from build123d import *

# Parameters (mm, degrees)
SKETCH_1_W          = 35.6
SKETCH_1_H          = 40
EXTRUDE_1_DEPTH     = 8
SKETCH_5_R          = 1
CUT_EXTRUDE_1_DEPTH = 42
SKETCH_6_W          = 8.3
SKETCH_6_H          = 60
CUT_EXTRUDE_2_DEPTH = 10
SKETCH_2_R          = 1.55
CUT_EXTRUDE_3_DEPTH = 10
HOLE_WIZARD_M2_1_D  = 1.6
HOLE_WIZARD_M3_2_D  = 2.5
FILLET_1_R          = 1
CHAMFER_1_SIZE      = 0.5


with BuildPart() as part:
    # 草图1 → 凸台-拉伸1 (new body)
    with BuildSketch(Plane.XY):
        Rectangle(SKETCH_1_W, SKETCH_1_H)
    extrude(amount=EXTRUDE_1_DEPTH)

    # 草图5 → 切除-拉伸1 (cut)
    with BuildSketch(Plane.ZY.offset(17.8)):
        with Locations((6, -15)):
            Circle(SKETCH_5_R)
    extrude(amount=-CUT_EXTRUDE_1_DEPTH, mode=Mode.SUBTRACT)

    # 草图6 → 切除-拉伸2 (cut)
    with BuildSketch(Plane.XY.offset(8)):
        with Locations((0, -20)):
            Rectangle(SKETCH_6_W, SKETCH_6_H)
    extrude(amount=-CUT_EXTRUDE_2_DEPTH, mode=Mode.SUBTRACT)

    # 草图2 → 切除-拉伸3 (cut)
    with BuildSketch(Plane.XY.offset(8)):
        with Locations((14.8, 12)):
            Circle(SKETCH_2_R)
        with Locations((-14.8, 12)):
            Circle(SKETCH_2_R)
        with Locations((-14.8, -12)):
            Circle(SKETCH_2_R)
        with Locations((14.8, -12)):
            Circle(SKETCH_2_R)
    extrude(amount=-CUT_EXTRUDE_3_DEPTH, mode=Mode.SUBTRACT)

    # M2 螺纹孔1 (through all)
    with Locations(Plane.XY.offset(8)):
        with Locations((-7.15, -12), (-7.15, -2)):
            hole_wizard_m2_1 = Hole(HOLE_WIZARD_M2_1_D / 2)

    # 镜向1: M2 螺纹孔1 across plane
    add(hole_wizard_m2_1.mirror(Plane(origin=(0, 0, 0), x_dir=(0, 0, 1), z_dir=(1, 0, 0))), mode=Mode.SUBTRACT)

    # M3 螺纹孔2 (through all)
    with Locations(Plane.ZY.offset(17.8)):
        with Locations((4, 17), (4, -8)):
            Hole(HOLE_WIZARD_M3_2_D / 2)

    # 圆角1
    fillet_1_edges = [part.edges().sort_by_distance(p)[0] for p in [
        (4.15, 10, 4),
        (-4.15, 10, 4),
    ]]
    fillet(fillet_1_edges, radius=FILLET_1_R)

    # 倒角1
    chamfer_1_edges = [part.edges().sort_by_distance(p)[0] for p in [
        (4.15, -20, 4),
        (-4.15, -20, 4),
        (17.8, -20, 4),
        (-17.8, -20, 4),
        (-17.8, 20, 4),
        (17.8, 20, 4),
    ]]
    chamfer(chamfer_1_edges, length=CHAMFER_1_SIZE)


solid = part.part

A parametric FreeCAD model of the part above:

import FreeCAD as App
import Part
import Sketcher

V = App.Vector


def edges_at(feature, points):
    """Names of the edges that pass closest to the given points."""
    edges = feature.Shape.Edges
    near = lambda p: min(range(len(edges)), key=lambda i: edges[i].distToShape(Part.Vertex(*p))[0])
    return sorted({f"Edge{near(p) + 1}" for p in points})

doc = App.newDocument("Part")
params = doc.addObject("Spreadsheet::Sheet", "Params")
for row, (alias, value) in enumerate([
    ("sketch1_height", "40 mm"),
    ("sketch1_width", "35.6 mm"),
    ("pad1_length", "8 mm"),
    ("sketch2_diameter", "2 mm"),
    ("pocket1_length", "42 mm"),
    ("sketch3_height", "60 mm"),
    ("sketch3_width", "8.3 mm"),
    ("pocket2_length", "10 mm"),
    ("sketch4_diameter", "3.1 mm"),
    ("pocket3_length", "10 mm"),
    ("sketch5_diameter", "1.6 mm"),
    ("hole_diameter", "1.6 mm"),
    ("sketch6_diameter", "2.5 mm"),
    ("hole2_diameter", "2.5 mm"),
    ("fillet_radius", "1 mm"),
    ("chamfer_size", "0.5 mm"),
], start=1):
    params.set(f"A{row}", alias)
    params.set(f"B{row}", "=" + value)
    params.setAlias(f"B{row}", alias)

body = doc.addObject("PartDesign::Body", "Body")

# Sketch on XY plane
sketch1 = body.newObject("Sketcher::SketchObject", "Sketch")
sketch1.AttachmentSupport = (doc.getObject("XY_Plane"), [""])
sketch1.MapMode = "FlatFace"
sketch1.addGeometry([
    Part.LineSegment(V(-17.8, 20, 0), V(-17.8, -20, 0)),
    Part.LineSegment(V(-17.8, -20, 0), V(17.8, -20, 0)),
    Part.LineSegment(V(17.8, -20, 0), V(17.8, 20, 0)),
    Part.LineSegment(V(17.8, 20, 0), V(-17.8, 20, 0)),
], False)
sketch1.addConstraint([
    Sketcher.Constraint("Coincident", 0, 2, 1, 1),
    Sketcher.Constraint("Coincident", 1, 2, 2, 1),
    Sketcher.Constraint("Coincident", 2, 2, 3, 1),
    Sketcher.Constraint("Coincident", 3, 2, 0, 1),
    Sketcher.Constraint("Vertical", 0),
    Sketcher.Constraint("Horizontal", 1),
    Sketcher.Constraint("Vertical", 2),
    Sketcher.Constraint("Horizontal", 3),
    Sketcher.Constraint("Symmetric", 0, 2, 2, 2, -1, 1),
    Sketcher.Constraint("DistanceY", 0, 2, 0, 1, 40.0),
    Sketcher.Constraint("DistanceX", 1, 1, 1, 2, 35.6),
])
sketch1.setExpression("Constraints[9]", "Params.sketch1_height")
sketch1.setExpression("Constraints[10]", "Params.sketch1_width")
pad1 = body.newObject("PartDesign::Pad", "Pad")
pad1.Profile = sketch1
pad1.setExpression("Length", "Params.pad1_length")

# Sketch on YZ plane
sketch2 = body.newObject("Sketcher::SketchObject", "Sketch001")
sketch2.AttachmentSupport = (doc.getObject("YZ_Plane"), [""])
sketch2.MapMode = "FlatFace"
sketch2.AttachmentOffset = App.Placement(V(0, 0, -17.8), App.Rotation())
sketch2.addGeometry(Part.Circle(V(-15, 6, 0), V(0, 0, 1), 1), False)
sketch2.addConstraint([
    Sketcher.Constraint("Diameter", 0, 2.0),
    Sketcher.Constraint("DistanceX", 0, 3, -1, 1, 15.0),
    Sketcher.Constraint("DistanceY", -1, 1, 0, 3, 6.0),
])
sketch2.setExpression("Constraints[0]", "Params.sketch2_diameter")
pocket1 = body.newObject("PartDesign::Pocket", "Pocket")
pocket1.Profile = sketch2
pocket1.setExpression("Length", "Params.pocket1_length")
pocket1.Reversed = True

# Sketch on XY plane
sketch3 = body.newObject("Sketcher::SketchObject", "Sketch002")
sketch3.AttachmentSupport = (doc.getObject("XY_Plane"), [""])
sketch3.MapMode = "FlatFace"
sketch3.AttachmentOffset = App.Placement(V(0, 0, 8), App.Rotation())
sketch3.addGeometry([
    Part.LineSegment(V(-4.15, 10, 0), V(-4.15, -50, 0)),
    Part.LineSegment(V(-4.15, -50, 0), V(4.15, -50, 0)),
    Part.LineSegment(V(4.15, -50, 0), V(4.15, 10, 0)),
    Part.LineSegment(V(4.15, 10, 0), V(-4.15, 10, 0)),
], False)
sketch3.addConstraint([
    Sketcher.Constraint("Coincident", 0, 2, 1, 1),
    Sketcher.Constraint("Coincident", 1, 2, 2, 1),
    Sketcher.Constraint("Coincident", 2, 2, 3, 1),
    Sketcher.Constraint("Coincident", 3, 2, 0, 1),
    Sketcher.Constraint("Vertical", 0),
    Sketcher.Constraint("Horizontal", 1),
    Sketcher.Constraint("Vertical", 2),
    Sketcher.Constraint("Horizontal", 3),
    Sketcher.Constraint("DistanceY", 0, 2, 0, 1, 60.0),
    Sketcher.Constraint("DistanceX", 1, 1, 1, 2, 8.3),
    Sketcher.Constraint("DistanceY", 0, 2, -1, 1, 50.0),
    Sketcher.Constraint("DistanceX", 0, 2, -1, 1, 4.15),
])
sketch3.setExpression("Constraints[8]", "Params.sketch3_height")
sketch3.setExpression("Constraints[9]", "Params.sketch3_width")
pocket2 = body.newObject("PartDesign::Pocket", "Pocket001")
pocket2.Profile = sketch3
pocket2.setExpression("Length", "Params.pocket2_length")

# Sketch on XY plane
sketch4 = body.newObject("Sketcher::SketchObject", "Sketch003")
sketch4.AttachmentSupport = (doc.getObject("XY_Plane"), [""])
sketch4.MapMode = "FlatFace"
sketch4.AttachmentOffset = App.Placement(V(0, 0, 8), App.Rotation())
sketch4.addGeometry([
    Part.Circle(V(14.8, 12, 0), V(0, 0, 1), 1.55),
    Part.Circle(V(-14.8, 12, 0), V(0, 0, 1), 1.55),
    Part.Circle(V(-14.8, -12, 0), V(0, 0, 1), 1.55),
    Part.Circle(V(14.8, -12, 0), V(0, 0, 1), 1.55),
], False)
sketch4.addConstraint([
    Sketcher.Constraint("Equal", 0, 1),
    Sketcher.Constraint("Equal", 1, 2),
    Sketcher.Constraint("Equal", 2, 3),
    Sketcher.Constraint("Symmetric", 0, 3, 2, 3, -1, 1),
    Sketcher.Constraint("Symmetric", 1, 3, 3, 3, -1, 1),
    Sketcher.Constraint("Symmetric", 0, 3, 1, 3, -2),
    Sketcher.Constraint("Diameter", 0, 3.1),
    Sketcher.Constraint("DistanceY", -1, 1, 0, 3, 12.0),
    Sketcher.Constraint("DistanceX", -1, 1, 0, 3, 14.8),
])
sketch4.setExpression("Constraints[6]", "Params.sketch4_diameter")
pocket3 = body.newObject("PartDesign::Pocket", "Pocket002")
pocket3.Profile = sketch4
pocket3.setExpression("Length", "Params.pocket3_length")

# Sketch on XY plane
sketch5 = body.newObject("Sketcher::SketchObject", "Sketch004")
sketch5.AttachmentSupport = (doc.getObject("XY_Plane"), [""])
sketch5.MapMode = "FlatFace"
sketch5.AttachmentOffset = App.Placement(V(0, 0, 8), App.Rotation())
sketch5.addGeometry([
    Part.Circle(V(-7.15, -12, 0), V(0, 0, 1), 0.8),
    Part.Circle(V(-7.15, -2, 0), V(0, 0, 1), 0.8),
], False)
sketch5.addConstraint([
    Sketcher.Constraint("Equal", 0, 1),
    Sketcher.Constraint("Vertical", 0, 3, 1, 3),
    Sketcher.Constraint("Diameter", 0, 1.6),
    Sketcher.Constraint("DistanceY", 0, 3, -1, 1, 12.0),
    Sketcher.Constraint("DistanceY", 1, 3, -1, 1, 2.0),
    Sketcher.Constraint("DistanceX", 0, 3, -1, 1, 7.15),
])
sketch5.setExpression("Constraints[2]", "Params.sketch5_diameter")
doc.recompute()
hole = body.newObject("PartDesign::Hole", "Hole")
hole.Profile = sketch5
hole.ThreadType = "None"
hole.setExpression("Diameter", "Params.hole_diameter")
hole.DepthType = "ThroughAll"
doc.recompute()

mirrored = body.newObject("PartDesign::Mirrored", "Mirrored")
mirrored.Originals = [hole]
mirrored.MirrorPlane = (doc.getObject("YZ_Plane"), [""])
body.Tip = mirrored

# Sketch on YZ plane
sketch6 = body.newObject("Sketcher::SketchObject", "Sketch005")
sketch6.AttachmentSupport = (doc.getObject("YZ_Plane"), [""])
sketch6.MapMode = "FlatFace"
sketch6.AttachmentOffset = App.Placement(V(0, 0, -17.8), App.Rotation())
sketch6.addGeometry([
    Part.Circle(V(17, 4, 0), V(0, 0, 1), 1.25),
    Part.Circle(V(-8, 4, 0), V(0, 0, 1), 1.25),
], False)
sketch6.addConstraint([
    Sketcher.Constraint("Equal", 0, 1),
    Sketcher.Constraint("Horizontal", 0, 3, 1, 3),
    Sketcher.Constraint("Diameter", 0, 2.5),
    Sketcher.Constraint("DistanceX", -1, 1, 0, 3, 17.0),
    Sketcher.Constraint("DistanceY", -1, 1, 0, 3, 4.0),
    Sketcher.Constraint("DistanceX", 1, 3, -1, 1, 8.0),
])
sketch6.setExpression("Constraints[2]", "Params.sketch6_diameter")
doc.recompute()
hole2 = body.newObject("PartDesign::Hole", "Hole001")
hole2.Profile = sketch6
hole2.ThreadType = "None"
hole2.setExpression("Diameter", "Params.hole2_diameter")
hole2.DepthType = "ThroughAll"
hole2.Reversed = True
doc.recompute()

fillet = body.newObject("PartDesign::Fillet", "Fillet")
fillet.Base = (hole2, edges_at(hole2, [(4.15, 10, 4), (-4.15, 10, 4)]))
fillet.setExpression("Radius", "Params.fillet_radius")
doc.recompute()

chamfer = body.newObject("PartDesign::Chamfer", "Chamfer")
chamfer.Base = (fillet, edges_at(fillet, [
    (4.15, -20, 4),
    (-4.15, -20, 4),
    (17.8, -20, 4),
    (-17.8, -20, 4),
    (-17.8, 20, 4),
    (17.8, 20, 4),
]))
chamfer.setExpression("Size", "Params.chamfer_size")

doc.recompute()
